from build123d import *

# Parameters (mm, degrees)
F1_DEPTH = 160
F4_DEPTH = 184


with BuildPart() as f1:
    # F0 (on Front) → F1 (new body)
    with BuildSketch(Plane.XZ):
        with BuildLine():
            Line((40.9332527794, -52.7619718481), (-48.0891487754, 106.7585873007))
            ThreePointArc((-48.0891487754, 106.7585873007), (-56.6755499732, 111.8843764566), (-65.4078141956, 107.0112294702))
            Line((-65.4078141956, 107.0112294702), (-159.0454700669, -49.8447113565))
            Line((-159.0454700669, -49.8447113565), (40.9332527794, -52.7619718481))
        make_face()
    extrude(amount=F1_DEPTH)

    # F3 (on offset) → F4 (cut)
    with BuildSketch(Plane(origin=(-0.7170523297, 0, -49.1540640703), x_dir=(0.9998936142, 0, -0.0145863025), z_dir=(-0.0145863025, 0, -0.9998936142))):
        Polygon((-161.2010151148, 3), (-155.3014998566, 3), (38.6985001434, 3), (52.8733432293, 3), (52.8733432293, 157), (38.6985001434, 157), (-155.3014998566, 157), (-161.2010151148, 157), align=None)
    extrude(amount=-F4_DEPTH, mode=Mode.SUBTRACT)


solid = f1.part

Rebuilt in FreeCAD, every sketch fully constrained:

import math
import FreeCAD as App
import Part
import Sketcher

doc = App.newDocument("Part")
body = doc.addObject("PartDesign::Body", "Body")

sketch1 = body.newObject("Sketcher::SketchObject", "Sketch")
sketch1.AttachmentSupport = (doc.getObject("XZ_Plane"), [""])
sketch1.MapMode = "FlatFace"
sketch1.addGeometry([
    Part.LineSegment(App.Vector(40.933253, -52.761972, 0), App.Vector(-48.089149, 106.758587, 0)),
    Part.ArcOfCircle(Part.Circle(App.Vector(-56.821413, 101.88544, 0), App.Vector(0, 0, 1), 10), math.radians(29.164237), math.radians(149.164237)),
    Part.LineSegment(App.Vector(-65.407814, 107.011229, 0), App.Vector(-159.04547, -49.844711, 0)),
    Part.LineSegment(App.Vector(-159.04547, -49.844711, 0), App.Vector(40.933253, -52.761972, 0)),
], False)
sketch1.addConstraint([
    Sketcher.Constraint("Tangent", 0, 2, 1, 1),
    Sketcher.Constraint("Tangent", 1, 2, 2, 1),
    Sketcher.Constraint("Coincident", 2, 2, 3, 1),
    Sketcher.Constraint("Coincident", 3, 2, 0, 1),
    Sketcher.Constraint("Equal", 0, 2),
    Sketcher.Constraint("Radius", 1, 10.0),
    Sketcher.Constraint("Distance", 3, 200.0),
    Sketcher.Constraint("DistanceX", 1, 2, 1, 3, 8.586401),
    Sketcher.Constraint("DistanceY", 2, 2, 0, 2, 156.603299),
    Sketcher.Constraint("DistanceY", -1, 1, 1, 3, 101.88544),
    Sketcher.Constraint("DistanceX", 0, 2, -1, 1, 48.089149),
])
pad1 = body.newObject("PartDesign::Pad", "Pad")
pad1.Profile = sketch1
pad1.Length = 160

sketch2 = body.newObject("Sketcher::SketchObject", "Sketch001")
sketch2.Placement = App.Placement(App.Vector(-0.717052, 0, -49.154064), App.Rotation(App.Vector(0.999893614, 0, -0.014586303), App.Vector(0, -1, 0), App.Vector(-0.014586303, 0, -0.999893614), "ZXY"))
sketch2.addGeometry([
    Part.LineSegment(App.Vector(-161.201015, 3, 0), App.Vector(52.873343, 3, 0)),
    Part.LineSegment(App.Vector(52.873343, 3, 0), App.Vector(52.873343, 157, 0)),
    Part.LineSegment(App.Vector(52.873343, 157, 0), App.Vector(-161.201015, 157, 0)),
    Part.LineSegment(App.Vector(-161.201015, 157, 0), App.Vector(-161.201015, 3, 0)),
], False)
sketch2.addConstraint([
    Sketcher.Constraint("Coincident", 0, 2, 1, 1),
    Sketcher.Constraint("Coincident", 1, 2, 2, 1),
    Sketcher.Constraint("Coincident", 2, 2, 3, 1),
    Sketcher.Constraint("Coincident", 3, 2, 0, 1),
    Sketcher.Constraint("Horizontal", 0),
    Sketcher.Constraint("Vertical", 1),
    Sketcher.Constraint("Horizontal", 2),
    Sketcher.Constraint("Vertical", 3),
    Sketcher.Constraint("DistanceY", 1, 1, 1, 2, 154.0),
    Sketcher.Constraint("DistanceY", -1, 1, 0, 2, 3.0),
    Sketcher.Constraint("DistanceX", 0, 1, 0, 2, 214.074358),
    Sketcher.Constraint("DistanceX", -1, 1, 0, 2, 52.873343),
])
pocket1 = body.newObject("PartDesign::Pocket", "Pocket")
pocket1.Profile = sketch2
pocket1.Length = 184

doc.recompute()
